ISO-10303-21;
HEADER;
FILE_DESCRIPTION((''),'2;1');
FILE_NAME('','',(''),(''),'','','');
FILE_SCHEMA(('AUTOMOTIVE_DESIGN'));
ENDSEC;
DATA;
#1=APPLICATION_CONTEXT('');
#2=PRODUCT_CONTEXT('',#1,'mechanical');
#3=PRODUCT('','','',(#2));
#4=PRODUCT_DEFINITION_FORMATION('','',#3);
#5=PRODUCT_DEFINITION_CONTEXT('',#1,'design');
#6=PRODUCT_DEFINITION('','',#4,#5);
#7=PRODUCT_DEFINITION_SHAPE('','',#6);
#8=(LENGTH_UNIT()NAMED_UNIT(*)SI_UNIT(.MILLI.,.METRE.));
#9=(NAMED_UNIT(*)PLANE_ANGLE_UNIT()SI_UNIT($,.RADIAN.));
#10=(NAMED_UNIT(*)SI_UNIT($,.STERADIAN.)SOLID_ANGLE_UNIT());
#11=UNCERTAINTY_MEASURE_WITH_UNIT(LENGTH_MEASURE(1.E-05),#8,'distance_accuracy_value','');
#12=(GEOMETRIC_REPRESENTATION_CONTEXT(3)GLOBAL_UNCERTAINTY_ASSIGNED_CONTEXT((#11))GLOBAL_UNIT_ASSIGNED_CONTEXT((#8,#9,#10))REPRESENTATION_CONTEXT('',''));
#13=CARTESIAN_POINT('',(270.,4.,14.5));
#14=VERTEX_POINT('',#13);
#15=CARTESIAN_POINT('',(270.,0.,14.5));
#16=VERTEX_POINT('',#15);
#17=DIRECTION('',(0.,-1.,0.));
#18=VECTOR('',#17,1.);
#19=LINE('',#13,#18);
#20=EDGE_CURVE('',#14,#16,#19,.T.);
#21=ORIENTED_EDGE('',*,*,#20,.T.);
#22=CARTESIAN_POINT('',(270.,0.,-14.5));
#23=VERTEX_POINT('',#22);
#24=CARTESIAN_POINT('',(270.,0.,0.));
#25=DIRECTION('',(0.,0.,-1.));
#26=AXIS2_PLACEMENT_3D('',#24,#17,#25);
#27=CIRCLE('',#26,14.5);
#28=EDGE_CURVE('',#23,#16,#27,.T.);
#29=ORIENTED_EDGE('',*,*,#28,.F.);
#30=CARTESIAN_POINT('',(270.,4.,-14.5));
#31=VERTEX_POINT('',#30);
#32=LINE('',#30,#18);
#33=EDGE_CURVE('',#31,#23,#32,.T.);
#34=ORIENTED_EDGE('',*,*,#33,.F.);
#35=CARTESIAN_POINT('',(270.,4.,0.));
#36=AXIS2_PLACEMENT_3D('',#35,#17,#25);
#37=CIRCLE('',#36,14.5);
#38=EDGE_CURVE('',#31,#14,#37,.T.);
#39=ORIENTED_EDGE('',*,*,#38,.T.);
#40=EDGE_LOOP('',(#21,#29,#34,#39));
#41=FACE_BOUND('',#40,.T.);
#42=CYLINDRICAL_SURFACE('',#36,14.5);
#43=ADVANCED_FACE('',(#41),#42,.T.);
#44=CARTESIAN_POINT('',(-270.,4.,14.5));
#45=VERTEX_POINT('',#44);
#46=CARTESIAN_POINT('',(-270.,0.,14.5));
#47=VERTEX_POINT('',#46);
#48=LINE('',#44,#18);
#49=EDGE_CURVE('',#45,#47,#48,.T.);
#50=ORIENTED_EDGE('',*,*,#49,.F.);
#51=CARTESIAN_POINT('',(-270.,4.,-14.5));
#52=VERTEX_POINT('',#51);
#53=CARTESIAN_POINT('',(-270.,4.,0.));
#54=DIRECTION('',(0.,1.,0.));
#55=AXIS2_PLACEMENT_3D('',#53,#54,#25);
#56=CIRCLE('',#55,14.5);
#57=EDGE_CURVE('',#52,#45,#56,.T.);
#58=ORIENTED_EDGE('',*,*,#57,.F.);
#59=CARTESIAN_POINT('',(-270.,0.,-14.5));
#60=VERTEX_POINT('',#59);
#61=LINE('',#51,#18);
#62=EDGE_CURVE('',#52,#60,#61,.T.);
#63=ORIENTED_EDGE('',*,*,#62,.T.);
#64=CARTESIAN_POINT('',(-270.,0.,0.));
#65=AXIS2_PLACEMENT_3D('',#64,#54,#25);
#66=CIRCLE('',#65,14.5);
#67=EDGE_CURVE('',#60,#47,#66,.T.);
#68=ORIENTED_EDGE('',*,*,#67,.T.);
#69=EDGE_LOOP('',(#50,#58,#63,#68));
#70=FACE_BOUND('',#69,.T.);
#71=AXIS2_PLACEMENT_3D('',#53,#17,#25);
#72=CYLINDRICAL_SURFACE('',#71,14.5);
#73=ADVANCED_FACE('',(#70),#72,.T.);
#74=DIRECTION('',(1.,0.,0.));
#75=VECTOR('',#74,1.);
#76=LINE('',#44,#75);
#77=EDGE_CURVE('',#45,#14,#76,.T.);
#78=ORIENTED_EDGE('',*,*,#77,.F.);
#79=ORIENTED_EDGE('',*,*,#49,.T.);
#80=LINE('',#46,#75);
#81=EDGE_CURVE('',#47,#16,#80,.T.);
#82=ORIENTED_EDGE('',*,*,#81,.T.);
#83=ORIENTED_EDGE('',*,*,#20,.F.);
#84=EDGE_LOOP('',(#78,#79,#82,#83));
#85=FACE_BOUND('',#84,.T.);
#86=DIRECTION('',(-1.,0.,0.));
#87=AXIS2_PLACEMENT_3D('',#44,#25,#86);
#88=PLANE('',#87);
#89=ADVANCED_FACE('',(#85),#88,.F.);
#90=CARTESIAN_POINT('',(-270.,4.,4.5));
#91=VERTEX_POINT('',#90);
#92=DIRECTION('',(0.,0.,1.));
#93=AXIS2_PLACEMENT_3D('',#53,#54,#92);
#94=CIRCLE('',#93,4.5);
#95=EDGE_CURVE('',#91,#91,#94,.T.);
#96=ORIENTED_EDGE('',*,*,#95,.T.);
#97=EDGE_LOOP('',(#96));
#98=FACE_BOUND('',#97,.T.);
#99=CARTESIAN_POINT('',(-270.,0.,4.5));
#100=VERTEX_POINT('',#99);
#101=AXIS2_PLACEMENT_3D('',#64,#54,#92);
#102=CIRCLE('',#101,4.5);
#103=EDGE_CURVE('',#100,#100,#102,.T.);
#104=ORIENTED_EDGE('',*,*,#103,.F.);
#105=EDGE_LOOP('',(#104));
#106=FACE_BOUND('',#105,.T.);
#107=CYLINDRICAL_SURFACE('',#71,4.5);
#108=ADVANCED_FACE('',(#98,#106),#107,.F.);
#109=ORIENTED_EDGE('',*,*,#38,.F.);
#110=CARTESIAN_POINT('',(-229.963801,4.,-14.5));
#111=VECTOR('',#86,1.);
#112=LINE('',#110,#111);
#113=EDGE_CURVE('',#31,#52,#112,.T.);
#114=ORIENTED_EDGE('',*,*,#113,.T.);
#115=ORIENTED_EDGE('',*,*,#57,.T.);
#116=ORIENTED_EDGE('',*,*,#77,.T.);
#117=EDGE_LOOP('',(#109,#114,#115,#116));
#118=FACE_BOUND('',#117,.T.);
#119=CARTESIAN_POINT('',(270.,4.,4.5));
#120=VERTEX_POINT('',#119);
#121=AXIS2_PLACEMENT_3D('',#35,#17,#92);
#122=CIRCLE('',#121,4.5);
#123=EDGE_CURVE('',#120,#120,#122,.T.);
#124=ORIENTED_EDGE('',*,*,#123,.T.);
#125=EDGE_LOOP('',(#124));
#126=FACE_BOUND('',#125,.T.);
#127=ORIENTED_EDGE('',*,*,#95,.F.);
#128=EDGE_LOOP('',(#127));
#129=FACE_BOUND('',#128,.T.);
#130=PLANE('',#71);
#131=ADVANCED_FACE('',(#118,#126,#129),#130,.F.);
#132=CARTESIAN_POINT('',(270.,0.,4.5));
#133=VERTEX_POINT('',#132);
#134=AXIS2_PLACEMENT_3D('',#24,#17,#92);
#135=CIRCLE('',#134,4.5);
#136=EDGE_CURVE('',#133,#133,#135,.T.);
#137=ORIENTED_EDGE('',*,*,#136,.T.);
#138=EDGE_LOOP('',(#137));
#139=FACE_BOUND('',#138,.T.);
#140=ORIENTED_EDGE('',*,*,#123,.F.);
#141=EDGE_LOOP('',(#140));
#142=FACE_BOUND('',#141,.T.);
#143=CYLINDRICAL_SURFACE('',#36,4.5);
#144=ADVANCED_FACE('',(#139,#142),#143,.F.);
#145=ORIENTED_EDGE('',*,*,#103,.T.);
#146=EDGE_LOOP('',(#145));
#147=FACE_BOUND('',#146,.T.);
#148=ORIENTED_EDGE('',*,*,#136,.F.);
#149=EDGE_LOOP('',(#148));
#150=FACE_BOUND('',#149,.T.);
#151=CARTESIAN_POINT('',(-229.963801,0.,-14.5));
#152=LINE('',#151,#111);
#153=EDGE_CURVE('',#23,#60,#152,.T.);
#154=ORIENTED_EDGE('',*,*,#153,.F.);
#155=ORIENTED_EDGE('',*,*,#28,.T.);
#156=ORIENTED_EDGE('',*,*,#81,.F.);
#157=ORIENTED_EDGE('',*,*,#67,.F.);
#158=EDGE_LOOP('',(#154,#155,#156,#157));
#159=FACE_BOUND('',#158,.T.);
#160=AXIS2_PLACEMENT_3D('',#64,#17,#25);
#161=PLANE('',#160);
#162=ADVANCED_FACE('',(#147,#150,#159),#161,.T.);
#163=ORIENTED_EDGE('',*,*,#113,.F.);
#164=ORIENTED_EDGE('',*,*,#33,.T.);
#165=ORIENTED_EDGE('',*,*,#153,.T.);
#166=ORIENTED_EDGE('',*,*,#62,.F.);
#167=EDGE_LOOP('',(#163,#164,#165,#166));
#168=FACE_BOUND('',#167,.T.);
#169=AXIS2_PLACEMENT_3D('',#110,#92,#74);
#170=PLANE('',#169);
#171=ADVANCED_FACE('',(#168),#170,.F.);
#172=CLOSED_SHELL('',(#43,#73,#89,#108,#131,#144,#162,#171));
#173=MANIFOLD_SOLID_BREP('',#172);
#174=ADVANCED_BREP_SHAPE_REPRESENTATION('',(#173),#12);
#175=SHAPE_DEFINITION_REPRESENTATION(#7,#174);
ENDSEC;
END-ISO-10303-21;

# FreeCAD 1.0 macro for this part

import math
import FreeCAD as App
import Part
import Sketcher
Q = App.Units.Quantity


def add_polygon(sketch, points):
    """Adds a closed chain of lines whose ends are joined by coincident constraints."""
    first, n = sketch.GeometryCount, len(points)
    for a, b in zip(points, points[1:] + points[:1]):
        sketch.addGeometry(Part.LineSegment(App.Vector(*a, 0), App.Vector(*b, 0)), False)
    for i in range(n):
        sketch.addConstraint(Sketcher.Constraint("Coincident", first + i, 2, first + (i + 1) % n, 1))

doc = App.newDocument("Part")
body = doc.addObject("PartDesign::Body", "Body")

# Sketch on XZ plane
sketch1 = doc.addObject("Sketcher::SketchObject", "Sketch")
body.addObject(sketch1)
sketch1.AttachmentSupport = (doc.XZ_Plane, [""])
sketch1.MapMode = "FlatFace"
sketch1.addGeometry([
    Part.LineSegment(App.Vector(-270, 14.5, 0), App.Vector(0, 14.5, 0)),  # 0
    Part.LineSegment(App.Vector(0, 14.5, 0), App.Vector(0, -340, 0)),  # 1
    Part.LineSegment(App.Vector(0, -340, 0), App.Vector(-175.463801, -340, 0)),  # 2
    Part.ArcOfCircle(Part.Circle(App.Vector(-175.463801, -325.5, 0), App.Vector(0, 0, 1), 14.5), math.radians(-180), math.radians(-90)),  # 3
    Part.LineSegment(App.Vector(-189.963801, -325.5, 0), App.Vector(-189.963801, -225.606591, 0)),  # 4
    Part.ArcOfCircle(Part.Circle(App.Vector(-189.963801, -210.606591, 0), App.Vector(0, 0, 1), 15), math.radians(90), math.radians(270)),  # 5
    Part.LineSegment(App.Vector(-189.963801, -195.606591, 0), App.Vector(-189.963801, -54.5, 0)),  # 6
    Part.LineSegment(App.Vector(-189.963801, -54.5, 0), App.Vector(-229.963801, -14.5, 0)),  # 7
    Part.LineSegment(App.Vector(-229.963801, -14.5, 0), App.Vector(-270, -14.5, 0)),  # 8
    Part.ArcOfCircle(Part.Circle(App.Vector(-270, 0, 0), App.Vector(0, 0, 1), 14.5), math.radians(90), math.radians(270)),  # 9
    Part.Circle(App.Vector(-270, 0, 0), App.Vector(0, 0, 1), 4.5),  # 10
    Part.Circle(App.Vector(-199.713801, -210.606591, 0), App.Vector(0, 0, 1), 1.75),  # 11
    Part.Circle(App.Vector(-189.963801, -200.806591, 0), App.Vector(0, 0, 1), 1.75),  # 12
    Part.Circle(App.Vector(-189.963801, -210.606591, 0), App.Vector(0, 0, 1), 6.5),  # 13
    Part.Circle(App.Vector(-189.963801, -220.406591, 0), App.Vector(0, 0, 1), 1.75),  # 14
    Part.Circle(App.Vector(-180.213801, -210.606591, 0), App.Vector(0, 0, 1), 1.75),  # 15
    Part.Circle(App.Vector(-175.463801, -325.5, 0), App.Vector(0, 0, 1), 4.5),  # 16
], False)
sketch1.addConstraint([
    Sketcher.Constraint("Coincident", 0, 2, 1, 1),
    Sketcher.Constraint("Coincident", 1, 2, 2, 1),
    Sketcher.Constraint("Tangent", 2, 2, 3, 2),
    Sketcher.Constraint("Tangent", 3, 1, 4, 1),
    Sketcher.Constraint("Coincident", 4, 2, 5, 2),
    Sketcher.Constraint("Coincident", 5, 1, 6, 1),
    Sketcher.Constraint("Coincident", 6, 2, 7, 1),
    Sketcher.Constraint("Coincident", 7, 2, 8, 1),
    Sketcher.Constraint("Tangent", 8, 2, 9, 2),
    Sketcher.Constraint("Tangent", 9, 1, 0, 1),
    Sketcher.Constraint("Horizontal", 0),
    Sketcher.Constraint("Vertical", 1),
    Sketcher.Constraint("Horizontal", 2),
    Sketcher.Constraint("Vertical", 4),
    Sketcher.Constraint("Vertical", 6),
    Sketcher.Constraint("Horizontal", 8),
    Sketcher.Constraint("Coincident", 10, 3, 9, 3),
    Sketcher.Constraint("Coincident", 13, 3, 5, 3),
    Sketcher.Constraint("Coincident", 16, 3, 3, 3),
    Sketcher.Constraint("Equal", 3, 9),
    Sketcher.Constraint("Equal", 11, 12),
    Sketcher.Constraint("Equal", 12, 14),
    Sketcher.Constraint("Equal", 14, 15),
    Sketcher.Constraint("Equal", 10, 16),
    Sketcher.Constraint("PointOnObject", 9, 3, -1),
    Sketcher.Constraint("PointOnObject", 0, 2, -2),
    Sketcher.Constraint("Horizontal", 5, 3, 11, 3),
    Sketcher.Constraint("Horizontal", 13, 3, 15, 3),
    Sketcher.Constraint("Vertical", 5, 3, 12, 3),
    Sketcher.Constraint("Vertical", 13, 3, 14, 3),
    Sketcher.Constraint("Vertical", 14, 3, 3, 1),
    Sketcher.Constraint("Vertical", 4, 2, 5, 1),
    Sketcher.Constraint("Diameter", 10, Q("9 mm")),
    Sketcher.Constraint("Diameter", 13, Q("13 mm")),
    Sketcher.Constraint("Radius", 5, Q("15 mm")),
    Sketcher.Constraint("Diameter", 11, Q("3.5 mm")),
    Sketcher.Constraint("Radius", 3, Q("14.5 mm")),
    Sketcher.Constraint("DistanceX", 0, 1, 0, 2, Q("270 mm")),
    Sketcher.Constraint("Angle", 7, Q("135 deg")),
    Sketcher.Constraint("DistanceY", 1, 2, 1, 1, Q("354.5 mm")),
    Sketcher.Constraint("DistanceX", 7, 2, 6, 2, Q("40 mm")),
    Sketcher.Constraint("DistanceY", 5, 3, 12, 3, Q("9.8 mm")),
    Sketcher.Constraint("DistanceY", 14, 3, 5, 3, Q("9.8 mm")),
    Sketcher.Constraint("DistanceX", 11, 3, 15, 3, Q("19.5 mm")),
    Sketcher.Constraint("DistanceX", 11, 3, 5, 3, Q("9.75 mm")),
    Sketcher.Constraint("DistanceX", 2, 2, 2, 1, Q("175.463801 mm")),
    Sketcher.Constraint("DistanceY", 4, 1, 4, 2, Q("99.893409 mm")),
])
pad1 = doc.addObject("PartDesign::Pad", "Pad")
body.addObject(pad1)
pad1.Profile = sketch1
pad1.Length = 4
pad1.Reversed = True
doc.recompute()

mirrored = doc.addObject("PartDesign::Mirrored", "Mirrored")
body.addObject(mirrored)
mirrored.Originals = [pad1]
mirrored.MirrorPlane = (doc.YZ_Plane, [""])
body.Tip = mirrored

# Sketch on XZ plane
sketch2 = doc.addObject("Sketcher::SketchObject", "Sketch001")
body.addObject(sketch2)
sketch2.AttachmentSupport = (doc.XZ_Plane, [""])
sketch2.MapMode = "FlatFace"
sketch2.AttachmentOffset = App.Placement(App.Vector(0, 0, -4), App.Rotation())
sketch2.addGeometry(Part.Circle(App.Vector(0, -305.5, 0), App.Vector(0, 0, 1), 2), False)
sketch2.addConstraint([
    Sketcher.Constraint("PointOnObject", 0, 3, -2),
    Sketcher.Constraint("Diameter", 0, Q("4 mm")),
    Sketcher.Constraint("DistanceY", 0, 3, -1, 1, Q("305.5 mm")),
])
pocket1 = doc.addObject("PartDesign::Pocket", "Pocket")
body.addObject(pocket1)
pocket1.Profile = sketch2
pocket1.Length = 4
pocket1.Reversed = True

# Sketch on XZ plane
sketch3 = doc.addObject("Sketcher::SketchObject", "Sketch002")
body.addObject(sketch3)
sketch3.AttachmentSupport = (doc.XZ_Plane, [""])
sketch3.MapMode = "FlatFace"
sketch3.AttachmentOffset = App.Placement(App.Vector(0, 0, -4), App.Rotation())
add_polygon(sketch3, [(-229.963801, -385.298064), (-229.963801, -14.5), (229.963801, -14.5), (229.963801, -385.298064)])  # lines 0-3
sketch3.addConstraint([
    Sketcher.Constraint("Vertical", 0),
    Sketcher.Constraint("Horizontal", 1),
    Sketcher.Constraint("Vertical", 2),
    Sketcher.Constraint("Horizontal", 3),
    Sketcher.Constraint("DistanceY", 0, 2, -1, 1, Q("14.5 mm")),
    Sketcher.Constraint("DistanceX", 1, 1, 1, 2, Q("459.927602 mm")),
    Sketcher.Constraint("DistanceX", 0, 2, -1, 1, Q("229.963801 mm")),
    Sketcher.Constraint("DistanceY", 0, 1, 0, 2, Q("370.798064 mm")),
])
pocket2 = doc.addObject("PartDesign::Pocket", "Pocket001")
body.addObject(pocket2)
pocket2.Profile = sketch3
pocket2.Length = 10
pocket2.Reversed = True

doc.recompute()
